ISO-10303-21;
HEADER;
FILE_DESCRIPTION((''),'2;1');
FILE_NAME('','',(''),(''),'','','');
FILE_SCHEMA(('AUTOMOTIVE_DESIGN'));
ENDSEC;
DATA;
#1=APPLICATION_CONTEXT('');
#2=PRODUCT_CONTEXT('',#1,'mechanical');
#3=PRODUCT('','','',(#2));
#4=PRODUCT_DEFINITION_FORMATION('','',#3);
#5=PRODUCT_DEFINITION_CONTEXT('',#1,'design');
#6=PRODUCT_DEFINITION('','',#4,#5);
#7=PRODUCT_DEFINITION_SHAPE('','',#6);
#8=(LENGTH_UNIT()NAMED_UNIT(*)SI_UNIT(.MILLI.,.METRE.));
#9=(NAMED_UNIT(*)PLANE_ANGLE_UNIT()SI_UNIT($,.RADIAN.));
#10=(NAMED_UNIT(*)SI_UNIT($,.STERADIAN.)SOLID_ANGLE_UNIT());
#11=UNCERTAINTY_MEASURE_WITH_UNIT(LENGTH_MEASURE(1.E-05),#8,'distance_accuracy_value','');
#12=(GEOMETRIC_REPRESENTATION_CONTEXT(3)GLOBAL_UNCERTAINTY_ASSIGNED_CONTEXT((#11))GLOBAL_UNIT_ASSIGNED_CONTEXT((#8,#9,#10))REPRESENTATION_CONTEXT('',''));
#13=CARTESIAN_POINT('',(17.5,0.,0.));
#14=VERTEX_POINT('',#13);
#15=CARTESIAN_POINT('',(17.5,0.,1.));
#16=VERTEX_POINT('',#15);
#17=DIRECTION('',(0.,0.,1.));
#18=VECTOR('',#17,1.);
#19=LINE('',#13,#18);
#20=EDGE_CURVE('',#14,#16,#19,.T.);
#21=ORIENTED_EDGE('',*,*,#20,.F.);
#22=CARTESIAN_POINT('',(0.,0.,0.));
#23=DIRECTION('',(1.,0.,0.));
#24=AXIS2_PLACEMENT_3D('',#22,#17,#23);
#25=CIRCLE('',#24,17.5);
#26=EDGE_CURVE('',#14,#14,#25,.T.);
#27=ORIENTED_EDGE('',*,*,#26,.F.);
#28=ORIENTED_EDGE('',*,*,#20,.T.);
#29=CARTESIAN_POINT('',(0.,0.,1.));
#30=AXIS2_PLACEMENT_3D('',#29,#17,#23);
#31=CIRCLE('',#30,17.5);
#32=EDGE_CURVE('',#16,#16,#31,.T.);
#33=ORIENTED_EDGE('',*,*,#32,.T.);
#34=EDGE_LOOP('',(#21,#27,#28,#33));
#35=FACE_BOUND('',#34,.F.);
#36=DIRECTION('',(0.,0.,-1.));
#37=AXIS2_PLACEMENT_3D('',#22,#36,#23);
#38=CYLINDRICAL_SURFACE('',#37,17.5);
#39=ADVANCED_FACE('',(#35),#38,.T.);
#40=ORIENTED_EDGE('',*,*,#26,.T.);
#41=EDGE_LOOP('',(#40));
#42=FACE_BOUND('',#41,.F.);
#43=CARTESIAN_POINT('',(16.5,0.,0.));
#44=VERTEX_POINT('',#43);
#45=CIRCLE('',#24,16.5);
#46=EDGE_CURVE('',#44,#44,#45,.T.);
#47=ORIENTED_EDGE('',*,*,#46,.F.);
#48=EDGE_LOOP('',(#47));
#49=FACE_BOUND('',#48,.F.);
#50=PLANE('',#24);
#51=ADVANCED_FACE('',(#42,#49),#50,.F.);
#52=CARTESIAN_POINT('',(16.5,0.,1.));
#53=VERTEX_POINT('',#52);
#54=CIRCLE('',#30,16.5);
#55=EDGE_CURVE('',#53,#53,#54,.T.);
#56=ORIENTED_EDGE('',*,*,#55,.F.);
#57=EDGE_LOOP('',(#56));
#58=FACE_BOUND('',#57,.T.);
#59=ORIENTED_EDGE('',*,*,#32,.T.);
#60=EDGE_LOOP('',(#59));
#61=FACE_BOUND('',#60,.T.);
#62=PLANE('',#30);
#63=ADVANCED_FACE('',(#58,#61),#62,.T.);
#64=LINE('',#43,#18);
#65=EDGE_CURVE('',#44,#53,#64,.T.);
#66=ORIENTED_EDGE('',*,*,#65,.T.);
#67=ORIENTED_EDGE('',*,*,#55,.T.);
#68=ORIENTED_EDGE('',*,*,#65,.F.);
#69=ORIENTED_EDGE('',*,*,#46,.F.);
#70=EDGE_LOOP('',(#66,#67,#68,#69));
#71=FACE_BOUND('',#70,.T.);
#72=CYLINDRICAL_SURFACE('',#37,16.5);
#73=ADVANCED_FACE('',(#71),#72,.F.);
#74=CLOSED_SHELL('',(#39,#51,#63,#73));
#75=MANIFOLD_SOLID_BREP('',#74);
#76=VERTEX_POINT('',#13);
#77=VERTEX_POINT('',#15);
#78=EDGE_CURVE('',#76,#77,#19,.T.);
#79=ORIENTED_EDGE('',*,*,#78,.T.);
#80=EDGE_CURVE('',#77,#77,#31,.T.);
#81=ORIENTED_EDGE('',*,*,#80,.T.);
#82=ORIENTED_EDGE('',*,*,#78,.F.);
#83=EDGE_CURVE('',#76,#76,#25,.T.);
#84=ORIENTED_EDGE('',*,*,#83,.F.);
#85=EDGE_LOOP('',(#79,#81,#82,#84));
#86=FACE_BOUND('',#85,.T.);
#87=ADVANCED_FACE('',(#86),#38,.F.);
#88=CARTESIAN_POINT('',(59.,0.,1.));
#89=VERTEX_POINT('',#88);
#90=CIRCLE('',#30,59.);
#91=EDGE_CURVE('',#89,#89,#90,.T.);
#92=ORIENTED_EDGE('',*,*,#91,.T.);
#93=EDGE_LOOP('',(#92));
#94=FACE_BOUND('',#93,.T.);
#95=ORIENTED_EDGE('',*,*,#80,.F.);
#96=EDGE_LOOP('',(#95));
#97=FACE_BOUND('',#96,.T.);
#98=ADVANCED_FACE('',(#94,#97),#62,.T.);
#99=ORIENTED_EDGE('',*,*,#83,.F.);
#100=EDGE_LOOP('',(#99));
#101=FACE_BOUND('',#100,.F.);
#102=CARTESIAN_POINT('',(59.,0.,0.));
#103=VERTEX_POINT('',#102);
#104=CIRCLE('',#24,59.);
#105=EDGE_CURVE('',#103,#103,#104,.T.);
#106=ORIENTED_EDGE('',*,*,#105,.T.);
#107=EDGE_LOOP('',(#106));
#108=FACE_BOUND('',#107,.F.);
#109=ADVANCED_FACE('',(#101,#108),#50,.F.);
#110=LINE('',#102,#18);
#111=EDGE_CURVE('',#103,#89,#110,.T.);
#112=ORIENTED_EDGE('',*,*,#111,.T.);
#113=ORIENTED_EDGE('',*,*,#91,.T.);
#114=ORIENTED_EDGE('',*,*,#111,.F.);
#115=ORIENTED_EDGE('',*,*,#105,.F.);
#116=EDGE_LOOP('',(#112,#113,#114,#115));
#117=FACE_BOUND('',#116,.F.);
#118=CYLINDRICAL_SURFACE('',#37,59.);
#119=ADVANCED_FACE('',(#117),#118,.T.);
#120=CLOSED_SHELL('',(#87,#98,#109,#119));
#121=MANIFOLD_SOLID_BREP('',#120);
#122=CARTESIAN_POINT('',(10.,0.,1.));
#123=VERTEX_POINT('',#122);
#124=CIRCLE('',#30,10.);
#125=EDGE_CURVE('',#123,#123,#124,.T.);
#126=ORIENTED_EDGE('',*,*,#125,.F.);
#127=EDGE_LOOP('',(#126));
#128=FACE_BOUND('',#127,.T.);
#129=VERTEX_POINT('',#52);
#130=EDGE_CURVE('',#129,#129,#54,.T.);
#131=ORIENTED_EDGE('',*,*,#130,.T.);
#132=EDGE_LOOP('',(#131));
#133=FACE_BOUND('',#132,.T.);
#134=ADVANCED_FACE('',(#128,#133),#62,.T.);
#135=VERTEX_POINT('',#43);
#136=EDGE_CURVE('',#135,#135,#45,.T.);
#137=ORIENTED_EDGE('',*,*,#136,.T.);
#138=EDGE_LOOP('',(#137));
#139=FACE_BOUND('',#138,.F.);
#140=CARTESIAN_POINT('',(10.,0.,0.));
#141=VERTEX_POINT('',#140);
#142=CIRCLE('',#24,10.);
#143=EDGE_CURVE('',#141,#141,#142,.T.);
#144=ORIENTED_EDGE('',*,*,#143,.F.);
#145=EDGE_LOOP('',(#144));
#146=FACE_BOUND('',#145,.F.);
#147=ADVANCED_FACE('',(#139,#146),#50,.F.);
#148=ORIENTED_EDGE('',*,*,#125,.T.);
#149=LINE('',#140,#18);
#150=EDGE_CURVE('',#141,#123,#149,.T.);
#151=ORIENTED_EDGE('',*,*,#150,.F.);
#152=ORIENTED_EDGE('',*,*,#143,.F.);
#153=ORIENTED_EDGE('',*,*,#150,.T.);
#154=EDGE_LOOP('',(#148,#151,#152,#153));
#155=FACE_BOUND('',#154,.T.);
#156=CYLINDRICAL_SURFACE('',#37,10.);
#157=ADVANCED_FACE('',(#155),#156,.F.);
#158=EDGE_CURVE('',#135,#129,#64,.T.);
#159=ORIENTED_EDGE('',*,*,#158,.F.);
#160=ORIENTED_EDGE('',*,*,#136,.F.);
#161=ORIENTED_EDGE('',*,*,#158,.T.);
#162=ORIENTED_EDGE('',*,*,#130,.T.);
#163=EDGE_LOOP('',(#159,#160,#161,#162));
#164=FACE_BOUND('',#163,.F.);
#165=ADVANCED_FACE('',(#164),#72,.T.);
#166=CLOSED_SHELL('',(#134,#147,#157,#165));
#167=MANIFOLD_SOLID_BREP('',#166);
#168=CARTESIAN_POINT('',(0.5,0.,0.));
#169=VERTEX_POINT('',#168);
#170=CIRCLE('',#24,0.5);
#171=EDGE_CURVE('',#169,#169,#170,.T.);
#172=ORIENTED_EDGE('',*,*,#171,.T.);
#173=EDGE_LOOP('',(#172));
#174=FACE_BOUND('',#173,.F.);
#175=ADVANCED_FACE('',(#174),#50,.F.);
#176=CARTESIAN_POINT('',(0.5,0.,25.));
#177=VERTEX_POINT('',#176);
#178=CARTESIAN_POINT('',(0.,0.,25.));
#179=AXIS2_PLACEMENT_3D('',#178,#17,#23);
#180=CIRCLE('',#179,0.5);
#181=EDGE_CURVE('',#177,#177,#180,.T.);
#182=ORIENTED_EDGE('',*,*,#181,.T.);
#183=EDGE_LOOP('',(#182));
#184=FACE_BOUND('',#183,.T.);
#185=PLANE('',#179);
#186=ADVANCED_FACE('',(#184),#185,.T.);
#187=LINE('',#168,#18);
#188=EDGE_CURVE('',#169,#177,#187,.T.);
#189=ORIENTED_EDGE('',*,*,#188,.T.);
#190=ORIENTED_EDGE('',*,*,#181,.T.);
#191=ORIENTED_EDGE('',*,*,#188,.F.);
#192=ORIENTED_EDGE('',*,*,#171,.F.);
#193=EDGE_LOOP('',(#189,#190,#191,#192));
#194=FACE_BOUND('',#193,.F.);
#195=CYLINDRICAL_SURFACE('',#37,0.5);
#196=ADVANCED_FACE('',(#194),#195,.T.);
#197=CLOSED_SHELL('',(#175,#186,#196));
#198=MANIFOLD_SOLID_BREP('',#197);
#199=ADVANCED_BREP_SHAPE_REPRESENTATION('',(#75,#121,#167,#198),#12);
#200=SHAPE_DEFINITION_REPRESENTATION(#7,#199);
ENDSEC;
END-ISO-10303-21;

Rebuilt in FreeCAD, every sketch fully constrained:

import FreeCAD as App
import Part
import Sketcher
from FreeCAD import Vector

doc = App.newDocument("Part")
body = doc.addObject("PartDesign::Body", "Body")

# Sketch on XY plane
sketch1 = doc.addObject("Sketcher::SketchObject", "Sketch")
body.addObject(sketch1)
sketch1.AttachmentSupport = (doc.XY_Plane, [""])
sketch1.MapMode = "FlatFace"
sketch1.addGeometry([
    Part.Circle(Vector(0, 0, 0), Vector(0, 0, 1), 59),
    Part.Circle(Vector(0, 0, 0), Vector(0, 0, 1), 18),
], False)
sketch1.addConstraint([
    Sketcher.Constraint("Coincident", 0, 3, -1, 1),
    Sketcher.Constraint("Coincident", 1, 3, -1, 1),
    Sketcher.Constraint("Diameter", 0, 118.0),
    Sketcher.Constraint("Diameter", 1, 35.0),
])
pad1 = doc.addObject("PartDesign::Pad", "Pad")
body.addObject(pad1)
pad1.Profile = sketch1
pad1.Length = 1
body2 = doc.addObject("PartDesign::Body", "Body001")

# Sketch on XY plane
sketch2 = doc.addObject("Sketcher::SketchObject", "Sketch001")
body2.addObject(sketch2)
sketch2.AttachmentSupport = (doc.getObject("XY_Plane001"), [""])
sketch2.MapMode = "FlatFace"
sketch2.addGeometry(Part.Circle(Vector(0, 0, 0), Vector(0, 0, 1), 0.5), False)
sketch2.addConstraint([
    Sketcher.Constraint("Coincident", 0, 3, -1, 1),
    Sketcher.Constraint("Diameter", 0, 1.0),
])
pad2 = doc.addObject("PartDesign::Pad", "Pad001")
body2.addObject(pad2)
pad2.Profile = sketch2
pad2.Length = 25
body3 = doc.addObject("PartDesign::Body", "Body002")

# Sketch on XY plane
sketch3 = doc.addObject("Sketcher::SketchObject", "Sketch002")
body3.addObject(sketch3)
sketch3.AttachmentSupport = (doc.getObject("XY_Plane002"), [""])
sketch3.MapMode = "FlatFace"
sketch3.addGeometry([
    Part.Circle(Vector(0, 0, 0), Vector(0, 0, 1), 16),
    Part.Circle(Vector(0, 0, 0), Vector(0, 0, 1), 10),
], False)
sketch3.addConstraint([
    Sketcher.Constraint("Coincident", 0, 3, -1, 1),
    Sketcher.Constraint("Coincident", 1, 3, -1, 1),
    Sketcher.Constraint("Diameter", 0, 33.0),
    Sketcher.Constraint("Diameter", 1, 20.0),
])
pad3 = doc.addObject("PartDesign::Pad", "Pad002")
body3.addObject(pad3)
pad3.Profile = sketch3
pad3.Length = 1
body4 = doc.addObject("PartDesign::Body", "Body003")

# Sketch on XY plane
sketch4 = doc.addObject("Sketcher::SketchObject", "Sketch003")
body4.addObject(sketch4)
sketch4.AttachmentSupport = (doc.getObject("XY_Plane003"), [""])
sketch4.MapMode = "FlatFace"
sketch4.addGeometry([
    Part.Circle(Vector(0, 0, 0), Vector(0, 0, 1), 18),
    Part.Circle(Vector(0, 0, 0), Vector(0, 0, 1), 16),
], False)
sketch4.addConstraint([
    Sketcher.Constraint("Coincident", 0, 3, -1, 1),
    Sketcher.Constraint("Coincident", 1, 3, -1, 1),
    Sketcher.Constraint("Diameter", 0, 35.0),
    Sketcher.Constraint("Diameter", 1, 33.0),
])
pad4 = doc.addObject("PartDesign::Pad", "Pad003")
body4.addObject(pad4)
pad4.Profile = sketch4
pad4.Length = 1

doc.recompute()
